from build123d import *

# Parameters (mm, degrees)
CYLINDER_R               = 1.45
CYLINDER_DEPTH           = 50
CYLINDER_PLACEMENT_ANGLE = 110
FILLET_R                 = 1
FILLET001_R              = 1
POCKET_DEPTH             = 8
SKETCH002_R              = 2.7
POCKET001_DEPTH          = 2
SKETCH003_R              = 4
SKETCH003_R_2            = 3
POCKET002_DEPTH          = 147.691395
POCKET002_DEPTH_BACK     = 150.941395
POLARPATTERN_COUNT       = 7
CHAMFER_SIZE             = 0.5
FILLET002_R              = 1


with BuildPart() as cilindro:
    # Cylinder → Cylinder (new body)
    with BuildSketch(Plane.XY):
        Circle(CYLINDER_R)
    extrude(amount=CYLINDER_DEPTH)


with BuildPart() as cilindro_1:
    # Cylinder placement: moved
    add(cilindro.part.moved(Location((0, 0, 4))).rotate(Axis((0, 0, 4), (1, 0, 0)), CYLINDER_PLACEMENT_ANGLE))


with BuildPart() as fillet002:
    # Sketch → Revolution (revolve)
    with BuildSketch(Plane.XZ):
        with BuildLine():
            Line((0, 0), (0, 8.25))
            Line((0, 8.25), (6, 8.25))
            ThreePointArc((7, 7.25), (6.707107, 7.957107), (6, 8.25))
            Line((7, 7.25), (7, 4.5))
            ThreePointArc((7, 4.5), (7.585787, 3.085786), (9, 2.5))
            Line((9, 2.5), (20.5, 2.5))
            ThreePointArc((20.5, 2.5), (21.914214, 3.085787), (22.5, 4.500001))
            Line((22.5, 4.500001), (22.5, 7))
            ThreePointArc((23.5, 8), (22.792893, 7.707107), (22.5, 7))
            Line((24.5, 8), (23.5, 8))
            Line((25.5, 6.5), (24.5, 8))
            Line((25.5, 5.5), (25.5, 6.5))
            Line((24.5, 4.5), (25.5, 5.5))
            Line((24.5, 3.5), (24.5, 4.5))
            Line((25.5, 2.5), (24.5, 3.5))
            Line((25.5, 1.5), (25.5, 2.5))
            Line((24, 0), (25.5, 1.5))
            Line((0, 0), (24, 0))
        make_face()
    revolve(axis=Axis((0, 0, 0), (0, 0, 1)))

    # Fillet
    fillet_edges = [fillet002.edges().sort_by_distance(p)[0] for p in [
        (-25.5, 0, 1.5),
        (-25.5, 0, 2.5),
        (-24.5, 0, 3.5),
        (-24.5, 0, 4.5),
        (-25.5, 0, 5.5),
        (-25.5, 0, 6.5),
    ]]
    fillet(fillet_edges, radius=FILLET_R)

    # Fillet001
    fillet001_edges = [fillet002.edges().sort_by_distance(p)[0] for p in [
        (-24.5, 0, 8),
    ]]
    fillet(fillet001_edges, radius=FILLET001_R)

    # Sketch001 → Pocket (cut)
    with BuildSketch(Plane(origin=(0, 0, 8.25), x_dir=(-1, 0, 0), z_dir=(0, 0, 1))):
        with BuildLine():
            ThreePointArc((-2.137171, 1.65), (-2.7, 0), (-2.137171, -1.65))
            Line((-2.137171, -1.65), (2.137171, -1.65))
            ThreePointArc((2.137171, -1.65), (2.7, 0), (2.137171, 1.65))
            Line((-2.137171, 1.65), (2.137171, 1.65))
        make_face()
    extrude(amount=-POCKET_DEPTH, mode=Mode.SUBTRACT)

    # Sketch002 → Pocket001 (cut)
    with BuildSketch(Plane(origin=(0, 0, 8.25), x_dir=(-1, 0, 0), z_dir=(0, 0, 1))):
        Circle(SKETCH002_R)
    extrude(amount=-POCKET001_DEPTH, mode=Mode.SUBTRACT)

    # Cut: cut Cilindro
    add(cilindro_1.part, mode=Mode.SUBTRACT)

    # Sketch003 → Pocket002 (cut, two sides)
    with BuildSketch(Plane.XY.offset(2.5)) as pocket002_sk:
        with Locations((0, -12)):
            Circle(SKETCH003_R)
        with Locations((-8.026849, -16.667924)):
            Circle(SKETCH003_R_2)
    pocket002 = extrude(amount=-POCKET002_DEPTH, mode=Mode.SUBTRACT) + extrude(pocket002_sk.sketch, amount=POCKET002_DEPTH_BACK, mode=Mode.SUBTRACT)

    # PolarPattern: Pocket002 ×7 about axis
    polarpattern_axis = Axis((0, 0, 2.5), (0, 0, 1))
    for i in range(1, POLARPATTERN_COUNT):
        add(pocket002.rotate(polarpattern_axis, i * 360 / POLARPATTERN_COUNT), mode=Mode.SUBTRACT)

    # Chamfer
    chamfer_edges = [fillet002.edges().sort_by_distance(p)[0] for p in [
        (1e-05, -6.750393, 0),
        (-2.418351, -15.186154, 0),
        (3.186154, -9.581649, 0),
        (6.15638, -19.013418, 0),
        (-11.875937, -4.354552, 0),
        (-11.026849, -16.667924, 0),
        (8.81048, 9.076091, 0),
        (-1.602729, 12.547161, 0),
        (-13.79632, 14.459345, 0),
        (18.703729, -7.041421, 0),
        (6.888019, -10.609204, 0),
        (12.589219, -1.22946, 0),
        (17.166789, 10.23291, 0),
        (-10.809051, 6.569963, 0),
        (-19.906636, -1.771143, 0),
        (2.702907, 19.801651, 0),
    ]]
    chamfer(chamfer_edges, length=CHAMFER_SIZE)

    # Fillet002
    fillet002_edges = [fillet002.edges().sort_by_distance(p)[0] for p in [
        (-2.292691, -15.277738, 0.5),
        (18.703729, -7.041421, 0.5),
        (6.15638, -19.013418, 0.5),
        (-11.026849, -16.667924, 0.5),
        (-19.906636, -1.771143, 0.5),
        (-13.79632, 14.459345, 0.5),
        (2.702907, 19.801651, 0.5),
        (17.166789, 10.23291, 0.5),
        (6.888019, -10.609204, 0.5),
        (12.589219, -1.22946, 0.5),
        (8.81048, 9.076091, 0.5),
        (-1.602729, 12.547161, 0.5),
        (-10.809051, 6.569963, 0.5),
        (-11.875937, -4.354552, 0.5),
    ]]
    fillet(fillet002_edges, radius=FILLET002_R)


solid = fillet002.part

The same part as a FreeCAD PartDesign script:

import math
import FreeCAD as App
import Part
import Sketcher
from FreeCAD import Vector
Q = App.Units.Quantity


def edges_at(feature, points):
    """Names of the edges that pass closest to the given points."""
    edges = feature.Shape.Edges
    near = lambda p: min(range(len(edges)), key=lambda i: edges[i].distToShape(Part.Vertex(*p))[0])
    return sorted({f"Edge{near(p) + 1}" for p in points})

doc = App.newDocument("Part")
body = doc.addObject("PartDesign::Body", "Body")

# Sketch on XY plane
sketch1 = doc.addObject("Sketcher::SketchObject", "Sketch")
body.addObject(sketch1)
sketch1.AttachmentSupport = (doc.XY_Plane, [""])
sketch1.MapMode = "FlatFace"
sketch1.addGeometry(Part.Circle(Vector(0, 0, 0), Vector(0, 0, 1), 1.4), False)
sketch1.addConstraint([
    Sketcher.Constraint("Coincident", 0, 3, -1, 1),
    Sketcher.Constraint("Diameter", 0, Q("2.9 mm")),
])
pad1 = doc.addObject("PartDesign::Pad", "Pad")
body.addObject(pad1)
pad1.Profile = sketch1
pad1.Length = 50
body2 = doc.addObject("PartDesign::Body", "Body001")
doc.recompute()

body.Placement = App.Placement(Vector(0, 0, 4), App.Rotation(Vector(1, 0, 0), 110))
boolean = doc.addObject("PartDesign::Boolean", "Boolean")
body2.addObject(boolean)
boolean.Type = "Fuse"
boolean.addObjects([body])
body3 = doc.addObject("PartDesign::Body", "Body002")

# Sketch on XZ plane
sketch2 = doc.addObject("Sketcher::SketchObject", "Sketch001")
body3.addObject(sketch2)
sketch2.AttachmentSupport = (doc.getObject("XZ_Plane002"), [""])
sketch2.MapMode = "FlatFace"
sketch2.addGeometry([
    Part.LineSegment(Vector(0, 8.2, 0), Vector(0, 0, 0)),  # 0
    Part.LineSegment(Vector(0, 0, 0), Vector(24, 0, 0)),  # 1
    Part.LineSegment(Vector(24, 0, 0), Vector(25.5, 1.5, 0)),  # 2
    Part.LineSegment(Vector(25.5, 1.5, 0), Vector(25.5, 2.5, 0)),  # 3
    Part.LineSegment(Vector(25.5, 2.5, 0), Vector(24.5, 3.5, 0)),  # 4
    Part.LineSegment(Vector(24.5, 3.5, 0), Vector(24.5, 4.5, 0)),  # 5
    Part.LineSegment(Vector(24.5, 4.5, 0), Vector(25.5, 5.5, 0)),  # 6
    Part.LineSegment(Vector(25.5, 5.5, 0), Vector(25.5, 6.5, 0)),  # 7
    Part.LineSegment(Vector(25.5, 6.5, 0), Vector(24.5, 8, 0)),  # 8
    Part.LineSegment(Vector(24.5, 8, 0), Vector(23.5, 8, 0)),  # 9
    Part.ArcOfCircle(Part.Circle(Vector(23.5, 7, 0), Vector(0, 0, 1), 1), math.radians(90), math.radians(180)),  # 10
    Part.LineSegment(Vector(22.5, 7, 0), Vector(22.5, 4.5, 0)),  # 11
    Part.ArcOfCircle(Part.Circle(Vector(20.5, 4.5, 0), Vector(0, 0, 1), 2), math.radians(-90), math.radians(0)),  # 12
    Part.LineSegment(Vector(20.5, 2.5, 0), Vector(9, 2.5, 0)),  # 13
    Part.ArcOfCircle(Part.Circle(Vector(9, 4.5, 0), Vector(0, 0, 1), 2), math.radians(-180), math.radians(-90)),  # 14
    Part.LineSegment(Vector(7, 4.5, 0), Vector(7, 7.2, 0)),  # 15
    Part.ArcOfCircle(Part.Circle(Vector(6, 7.3, 0), Vector(0, 0, 1), 1), math.radians(0), math.radians(90)),  # 16
    Part.LineSegment(Vector(6, 8.2, 0), Vector(0, 8.2, 0)),  # 17
], False)
sketch2.addConstraint([
    Sketcher.Constraint("Coincident", 0, 2, 1, 1),
    Sketcher.Constraint("Coincident", 1, 2, 2, 1),
    Sketcher.Constraint("Coincident", 2, 2, 3, 1),
    Sketcher.Constraint("Coincident", 3, 2, 4, 1),
    Sketcher.Constraint("Coincident", 4, 2, 5, 1),
    Sketcher.Constraint("Coincident", 5, 2, 6, 1),
    Sketcher.Constraint("Coincident", 6, 2, 7, 1),
    Sketcher.Constraint("Coincident", 7, 2, 8, 1),
    Sketcher.Constraint("Coincident", 8, 2, 9, 1),
    Sketcher.Constraint("Tangent", 9, 2, 10, 1),
    Sketcher.Constraint("Tangent", 10, 2, 11, 1),
    Sketcher.Constraint("Tangent", 11, 2, 12, 2),
    Sketcher.Constraint("Tangent", 12, 1, 13, 1),
    Sketcher.Constraint("Tangent", 13, 2, 14, 2),
    Sketcher.Constraint("Tangent", 14, 1, 15, 1),
    Sketcher.Constraint("Tangent", 15, 2, 16, 1),
    Sketcher.Constraint("Tangent", 16, 2, 17, 1),
    Sketcher.Constraint("Coincident", 17, 2, 0, 1),
    Sketcher.Constraint("Vertical", 0),
    Sketcher.Constraint("Horizontal", 1),
    Sketcher.Constraint("Vertical", 3),
    Sketcher.Constraint("Vertical", 5),
    Sketcher.Constraint("Vertical", 7),
    Sketcher.Constraint("Horizontal", 9),
    Sketcher.Constraint("Vertical", 11),
    Sketcher.Constraint("Horizontal", 13),
    Sketcher.Constraint("Vertical", 15),
    Sketcher.Constraint("Horizontal", 17),
    Sketcher.Constraint("Coincident", 0, 2, -1, 1),
    Sketcher.Constraint("Equal", 12, 14),
    Sketcher.Constraint("Equal", 10, 16),
    Sketcher.Constraint("Perpendicular", 2, 4),
    Sketcher.Constraint("Perpendicular", 4, 6),
    Sketcher.Constraint("Horizontal", 14, 3, 5, 2),
    Sketcher.Constraint("Horizontal", 3, 2, 12, 1),
    Sketcher.Constraint("Vertical", 3, 2, 6, 2),
    Sketcher.Constraint("Vertical", 5, 2, 8, 2),
    Sketcher.Constraint("Equal", 9, 3),
    Sketcher.Constraint("Equal", 3, 5),
    Sketcher.Constraint("Equal", 5, 7),
    Sketcher.Constraint("Equal", 4, 6),
    Sketcher.Constraint("Radius", 10, Q("0.999999 mm")),
    Sketcher.Constraint("Radius", 12, Q("2 mm")),
    Sketcher.Constraint("DistanceX", 1, 1, 1, 2, Q("24 mm")),
    Sketcher.Constraint("DistanceX", 9, 2, 9, 1, Q("1 mm")),
    Sketcher.Constraint("DistanceX", 17, 2, 17, 1, Q("6 mm")),
    Sketcher.Constraint("DistanceX", 13, 2, 13, 1, Q("11.5 mm")),
    Sketcher.Constraint("DistanceY", 11, 2, 11, 1, Q("2.499999 mm")),
    Sketcher.Constraint("DistanceY", 0, 2, 0, 1, Q("8.25 mm")),
])
revolution = doc.addObject("PartDesign::Revolution", "Revolution")
body3.addObject(revolution)
revolution.Profile = sketch2
revolution.ReferenceAxis = (sketch2, ["V_Axis"])
revolution.Angle = 360
doc.recompute()

fillet = doc.addObject("PartDesign::Fillet", "Fillet")
body3.addObject(fillet)
fillet.Base = (revolution, edges_at(revolution, [
    (-25.5, 0, 1.5),
    (-25.5, 0, 2.5),
    (-24.5, 0, 3.5),
    (-24.5, 0, 4.5),
    (-25.5, 0, 5.5),
    (-25.5, 0, 6.5),
]))
fillet.Radius = 1
doc.recompute()

fillet2 = doc.addObject("PartDesign::Fillet", "Fillet001")
body3.addObject(fillet2)
fillet2.Base = (fillet, edges_at(fillet, [(-24.5, 0, 8)]))
fillet2.Radius = 1

# Sketch on XY plane
sketch3 = doc.addObject("Sketcher::SketchObject", "Sketch002")
body3.addObject(sketch3)
sketch3.AttachmentSupport = (doc.getObject("XY_Plane002"), [""])
sketch3.MapMode = "FlatFace"
sketch3.AttachmentOffset = App.Placement(Vector(0, 0, 8.25), App.Rotation())
sketch3.addGeometry([
    Part.ArcOfCircle(Part.Circle(Vector(0, 0, 0), Vector(0, 0, 1), 2.7), math.radians(-38), math.radians(38)),
    Part.LineSegment(Vector(2.1, 1.6, 0), Vector(-2.1, 1.6, 0)),
    Part.ArcOfCircle(Part.Circle(Vector(0, 0, 0), Vector(0, 0, 1), 2.7), math.radians(142), math.radians(218)),
    Part.LineSegment(Vector(-2.1, -1.6, 0), Vector(2.1, -1.6, 0)),
], False)
sketch3.addConstraint([
    Sketcher.Constraint("Coincident", 0, 2, 1, 1),
    Sketcher.Constraint("Coincident", 1, 2, 2, 1),
    Sketcher.Constraint("Coincident", 2, 2, 3, 1),
    Sketcher.Constraint("Coincident", 3, 2, 0, 1),
    Sketcher.Constraint("Horizontal", 1),
    Sketcher.Constraint("Horizontal", 3),
    Sketcher.Constraint("Coincident", 0, 3, -1, 1),
    Sketcher.Constraint("Coincident", 2, 3, -1, 1),
    Sketcher.Constraint("Equal", 0, 2),
    Sketcher.Constraint("Vertical", 1, 2, 2, 2),
    Sketcher.Constraint("Radius", 0, Q("2.7 mm")),
    Sketcher.Constraint("DistanceY", 2, 2, 1, 2, Q("3.3 mm")),
])
pocket1 = doc.addObject("PartDesign::Pocket", "Pocket")
body3.addObject(pocket1)
pocket1.Profile = sketch3
pocket1.Length = 8

# Sketch on XY plane
sketch4 = doc.addObject("Sketcher::SketchObject", "Sketch003")
body3.addObject(sketch4)
sketch4.AttachmentSupport = (doc.getObject("XY_Plane002"), [""])
sketch4.MapMode = "FlatFace"
sketch4.AttachmentOffset = App.Placement(Vector(0, 0, 8.25), App.Rotation())
sketch4.addGeometry(Part.Circle(Vector(0, 0, 0), Vector(0, 0, 1), 2.7), False)
sketch4.addConstraint([
    Sketcher.Constraint("Coincident", 0, 3, -1, 1),
    Sketcher.Constraint("Diameter", 0, Q("5.4 mm")),
])
pocket2 = doc.addObject("PartDesign::Pocket", "Pocket001")
body3.addObject(pocket2)
pocket2.Profile = sketch4
pocket2.Length = 2
doc.recompute()

boolean2 = doc.addObject("PartDesign::Boolean", "Boolean001")
body3.addObject(boolean2)
boolean2.Type = "Cut"
boolean2.addObjects([body2])

# Sketch on XY plane
sketch5 = doc.addObject("Sketcher::SketchObject", "Sketch004")
body3.addObject(sketch5)
sketch5.AttachmentSupport = (doc.getObject("XY_Plane002"), [""])
sketch5.MapMode = "FlatFace"
sketch5.AttachmentOffset = App.Placement(Vector(0, 0, 2.5), App.Rotation())
sketch5.addGeometry([
    Part.Circle(Vector(0, -12, 0), Vector(0, 0, 1), 4),
    Part.Circle(Vector(-8, -16.7, 0), Vector(0, 0, 1), 3),
], False)
sketch5.addConstraint([
    Sketcher.Constraint("PointOnObject", 0, 3, -2),
    Sketcher.Constraint("Diameter", 0, Q("8 mm")),
    Sketcher.Constraint("Diameter", 1, Q("6 mm")),
    Sketcher.Constraint("DistanceY", 0, 3, -1, 1, Q("12 mm")),
    Sketcher.Constraint("DistanceX", 1, 3, -1, 1, Q("8.026849 mm")),
    Sketcher.Constraint("DistanceY", 1, 3, -1, 1, Q("16.667924 mm")),
])
pocket3 = doc.addObject("PartDesign::Pocket", "Pocket002")
body3.addObject(pocket3)
pocket3.Profile = sketch5
pocket3.Type = "ThroughAll"
pocket3.Midplane = True
doc.recompute()

polarpattern = doc.addObject("PartDesign::PolarPattern", "PolarPattern")
body3.addObject(polarpattern)
polarpattern.Originals = [pocket3]
polarpattern.Axis = (doc.getObject("Z_Axis002"), [""])
polarpattern.Angle = 360
polarpattern.Occurrences = 7
body3.Tip = polarpattern
doc.recompute()

chamfer = doc.addObject("PartDesign::Chamfer", "Chamfer")
body3.addObject(chamfer)
chamfer.Base = (polarpattern, edges_at(polarpattern, [
    (0, -6.75, 0),
    (0, -16, 0),
    (0, -16, 0),
    (6.156, -19.013, 0),
    (-11.876, -4.355, 0),
    (-11.027, -16.668, 0),
    (8.81, 9.076, 0),
    (-1.603, 12.547, 0),
    (-13.796, 14.459, 0),
    (18.704, -7.041, 0),
    (6.888, -10.609, 0),
    (12.589, -1.229, 0),
    (17.167, 10.233, 0),
    (-10.809, 6.57, 0),
    (-19.907, -1.771, 0),
    (2.703, 19.802, 0),
]))
chamfer.Size = 0.5
doc.recompute()

fillet3 = doc.addObject("PartDesign::Fillet", "Fillet002")
body3.addObject(fillet3)
fillet3.Base = (chamfer, edges_at(chamfer, [
    (0, -16, 0.5),
    (18.704, -7.041, 0.5),
    (6.156, -19.013, 0.5),
    (-11.027, -16.668, 0.5),
    (-19.907, -1.771, 0.5),
    (-13.796, 14.459, 0.5),
    (2.703, 19.802, 0.5),
    (17.167, 10.233, 0.5),
    (6.888, -10.609, 0.5),
    (12.589, -1.229, 0.5),
    (8.81, 9.076, 0.5),
    (-1.603, 12.547, 0.5),
    (-10.809, 6.57, 0.5),
    (-11.876, -4.355, 0.5),
]))
fillet3.Radius = 1

doc.recompute()
